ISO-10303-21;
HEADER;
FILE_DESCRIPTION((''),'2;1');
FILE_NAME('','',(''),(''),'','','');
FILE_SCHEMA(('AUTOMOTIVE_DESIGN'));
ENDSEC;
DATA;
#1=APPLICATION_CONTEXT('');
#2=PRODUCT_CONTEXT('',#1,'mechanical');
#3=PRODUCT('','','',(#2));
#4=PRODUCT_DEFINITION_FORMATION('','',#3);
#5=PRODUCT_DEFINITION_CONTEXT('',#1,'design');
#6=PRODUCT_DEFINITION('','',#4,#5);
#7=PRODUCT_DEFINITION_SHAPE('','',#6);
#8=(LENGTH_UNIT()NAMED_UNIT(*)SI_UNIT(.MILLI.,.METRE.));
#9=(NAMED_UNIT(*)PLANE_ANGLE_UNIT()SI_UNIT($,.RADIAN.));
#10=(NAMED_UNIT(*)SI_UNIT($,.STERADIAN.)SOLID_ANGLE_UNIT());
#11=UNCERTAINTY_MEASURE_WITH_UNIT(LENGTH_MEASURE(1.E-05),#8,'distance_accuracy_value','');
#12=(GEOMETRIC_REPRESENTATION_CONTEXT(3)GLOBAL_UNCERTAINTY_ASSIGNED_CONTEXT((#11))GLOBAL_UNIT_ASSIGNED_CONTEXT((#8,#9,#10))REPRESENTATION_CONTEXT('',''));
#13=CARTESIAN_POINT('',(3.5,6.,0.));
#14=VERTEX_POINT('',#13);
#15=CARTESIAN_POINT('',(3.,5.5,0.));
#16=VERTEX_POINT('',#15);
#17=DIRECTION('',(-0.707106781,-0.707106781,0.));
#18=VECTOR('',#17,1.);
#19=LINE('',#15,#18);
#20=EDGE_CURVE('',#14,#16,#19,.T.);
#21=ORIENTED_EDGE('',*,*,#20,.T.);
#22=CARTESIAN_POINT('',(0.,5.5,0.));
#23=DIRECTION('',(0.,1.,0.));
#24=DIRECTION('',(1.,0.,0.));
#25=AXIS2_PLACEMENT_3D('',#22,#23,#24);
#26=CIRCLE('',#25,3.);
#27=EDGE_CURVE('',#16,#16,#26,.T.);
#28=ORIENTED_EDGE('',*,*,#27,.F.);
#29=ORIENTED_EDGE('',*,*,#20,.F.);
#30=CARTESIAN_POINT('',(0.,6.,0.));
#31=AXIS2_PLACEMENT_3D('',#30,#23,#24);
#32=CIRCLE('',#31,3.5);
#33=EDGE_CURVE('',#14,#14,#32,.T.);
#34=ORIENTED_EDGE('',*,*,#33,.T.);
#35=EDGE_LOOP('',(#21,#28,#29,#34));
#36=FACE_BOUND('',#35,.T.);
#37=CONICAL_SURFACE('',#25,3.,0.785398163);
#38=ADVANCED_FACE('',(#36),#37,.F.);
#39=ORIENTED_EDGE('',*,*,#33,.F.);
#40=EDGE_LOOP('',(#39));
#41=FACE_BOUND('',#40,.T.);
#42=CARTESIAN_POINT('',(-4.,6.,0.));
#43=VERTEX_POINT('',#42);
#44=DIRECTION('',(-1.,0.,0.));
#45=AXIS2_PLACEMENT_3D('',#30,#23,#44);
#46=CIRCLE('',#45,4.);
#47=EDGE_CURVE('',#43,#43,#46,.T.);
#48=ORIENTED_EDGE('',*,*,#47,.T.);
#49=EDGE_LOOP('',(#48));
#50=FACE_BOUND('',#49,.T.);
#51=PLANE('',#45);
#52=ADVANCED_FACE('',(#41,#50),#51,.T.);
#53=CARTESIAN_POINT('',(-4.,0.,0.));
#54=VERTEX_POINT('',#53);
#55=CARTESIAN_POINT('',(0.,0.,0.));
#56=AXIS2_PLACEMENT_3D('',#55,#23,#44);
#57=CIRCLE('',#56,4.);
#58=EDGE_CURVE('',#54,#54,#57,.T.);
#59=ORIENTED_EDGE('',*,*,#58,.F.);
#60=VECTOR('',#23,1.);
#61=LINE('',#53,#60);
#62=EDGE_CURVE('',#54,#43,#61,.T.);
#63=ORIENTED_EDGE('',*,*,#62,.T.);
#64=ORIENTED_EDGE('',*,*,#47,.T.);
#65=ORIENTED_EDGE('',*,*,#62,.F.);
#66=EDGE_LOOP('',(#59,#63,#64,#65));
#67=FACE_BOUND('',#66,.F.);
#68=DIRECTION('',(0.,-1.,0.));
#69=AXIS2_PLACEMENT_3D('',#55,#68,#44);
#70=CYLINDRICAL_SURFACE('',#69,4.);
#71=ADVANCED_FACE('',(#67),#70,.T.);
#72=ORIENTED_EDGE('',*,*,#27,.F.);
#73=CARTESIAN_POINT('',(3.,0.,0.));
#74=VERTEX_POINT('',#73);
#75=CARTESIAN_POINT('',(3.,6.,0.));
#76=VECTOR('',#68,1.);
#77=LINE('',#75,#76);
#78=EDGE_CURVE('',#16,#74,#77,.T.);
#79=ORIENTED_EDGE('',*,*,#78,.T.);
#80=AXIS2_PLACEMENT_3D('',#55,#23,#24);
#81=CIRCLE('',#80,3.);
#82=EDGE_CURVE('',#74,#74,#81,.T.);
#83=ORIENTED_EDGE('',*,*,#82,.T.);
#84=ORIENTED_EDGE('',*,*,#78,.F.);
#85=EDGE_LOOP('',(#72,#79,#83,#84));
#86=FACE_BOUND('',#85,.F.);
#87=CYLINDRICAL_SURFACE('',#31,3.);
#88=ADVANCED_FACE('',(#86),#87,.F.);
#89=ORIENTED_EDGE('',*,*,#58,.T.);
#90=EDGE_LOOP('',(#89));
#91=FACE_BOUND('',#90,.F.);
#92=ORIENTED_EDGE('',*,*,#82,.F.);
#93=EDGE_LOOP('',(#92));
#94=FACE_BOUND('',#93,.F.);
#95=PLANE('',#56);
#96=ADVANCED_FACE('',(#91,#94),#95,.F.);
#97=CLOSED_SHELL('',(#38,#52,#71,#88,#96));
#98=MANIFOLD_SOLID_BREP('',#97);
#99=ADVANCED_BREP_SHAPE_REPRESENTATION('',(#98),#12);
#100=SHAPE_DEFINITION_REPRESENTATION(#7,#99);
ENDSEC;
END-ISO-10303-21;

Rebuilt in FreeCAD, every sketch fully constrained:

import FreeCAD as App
import Part
import Sketcher


def edges_at(feature, points):
    """Names of the edges that pass closest to the given points."""
    edges = feature.Shape.Edges
    near = lambda p: min(range(len(edges)), key=lambda i: edges[i].distToShape(Part.Vertex(*p))[0])
    return sorted({f"Edge{near(p) + 1}" for p in points})

doc = App.newDocument("Part")
body = doc.addObject("PartDesign::Body", "Body")

sketch1 = doc.addObject("Sketcher::SketchObject", "Sketch")
body.addObject(sketch1)
sketch1.AttachmentSupport = (doc.XZ_Plane, [""])
sketch1.MapMode = "FlatFace"
sketch1.addGeometry(Part.Circle(App.Vector(0, 0, 0), App.Vector(0, 0, 1), 4), False)
sketch1.addConstraint(Sketcher.Constraint("Coincident", 0, 3, -1, 1))
sketch1.addConstraint(Sketcher.Constraint("Diameter", 0, 8.0))
pad1 = doc.addObject("PartDesign::Pad", "Pad")
body.addObject(pad1)
pad1.Profile = sketch1
pad1.Length = 6
pad1.Reversed = True

sketch2 = doc.addObject("Sketcher::SketchObject", "Sketch001")
body.addObject(sketch2)
sketch2.AttachmentSupport = (doc.XZ_Plane, [""])
sketch2.MapMode = "FlatFace"
sketch2.AttachmentOffset = App.Placement(App.Vector(0, 0, -6), App.Rotation())
sketch2.addGeometry(Part.Circle(App.Vector(0, 0, 0), App.Vector(0, 0, 1), 3), False)
sketch2.addConstraint(Sketcher.Constraint("Coincident", 0, 3, -1, 1))
sketch2.addConstraint(Sketcher.Constraint("Diameter", 0, 6.0))
pocket1 = doc.addObject("PartDesign::Pocket", "Pocket")
body.addObject(pocket1)
pocket1.Profile = sketch2
pocket1.Type = "UpToFirst"
pocket1.Reversed = True
doc.recompute()

chamfer = doc.addObject("PartDesign::Chamfer", "Chamfer")
body.addObject(chamfer)
chamfer.Base = (pocket1, edges_at(pocket1, [(-3, 6, 0)]))
chamfer.Size = 0.5

doc.recompute()
